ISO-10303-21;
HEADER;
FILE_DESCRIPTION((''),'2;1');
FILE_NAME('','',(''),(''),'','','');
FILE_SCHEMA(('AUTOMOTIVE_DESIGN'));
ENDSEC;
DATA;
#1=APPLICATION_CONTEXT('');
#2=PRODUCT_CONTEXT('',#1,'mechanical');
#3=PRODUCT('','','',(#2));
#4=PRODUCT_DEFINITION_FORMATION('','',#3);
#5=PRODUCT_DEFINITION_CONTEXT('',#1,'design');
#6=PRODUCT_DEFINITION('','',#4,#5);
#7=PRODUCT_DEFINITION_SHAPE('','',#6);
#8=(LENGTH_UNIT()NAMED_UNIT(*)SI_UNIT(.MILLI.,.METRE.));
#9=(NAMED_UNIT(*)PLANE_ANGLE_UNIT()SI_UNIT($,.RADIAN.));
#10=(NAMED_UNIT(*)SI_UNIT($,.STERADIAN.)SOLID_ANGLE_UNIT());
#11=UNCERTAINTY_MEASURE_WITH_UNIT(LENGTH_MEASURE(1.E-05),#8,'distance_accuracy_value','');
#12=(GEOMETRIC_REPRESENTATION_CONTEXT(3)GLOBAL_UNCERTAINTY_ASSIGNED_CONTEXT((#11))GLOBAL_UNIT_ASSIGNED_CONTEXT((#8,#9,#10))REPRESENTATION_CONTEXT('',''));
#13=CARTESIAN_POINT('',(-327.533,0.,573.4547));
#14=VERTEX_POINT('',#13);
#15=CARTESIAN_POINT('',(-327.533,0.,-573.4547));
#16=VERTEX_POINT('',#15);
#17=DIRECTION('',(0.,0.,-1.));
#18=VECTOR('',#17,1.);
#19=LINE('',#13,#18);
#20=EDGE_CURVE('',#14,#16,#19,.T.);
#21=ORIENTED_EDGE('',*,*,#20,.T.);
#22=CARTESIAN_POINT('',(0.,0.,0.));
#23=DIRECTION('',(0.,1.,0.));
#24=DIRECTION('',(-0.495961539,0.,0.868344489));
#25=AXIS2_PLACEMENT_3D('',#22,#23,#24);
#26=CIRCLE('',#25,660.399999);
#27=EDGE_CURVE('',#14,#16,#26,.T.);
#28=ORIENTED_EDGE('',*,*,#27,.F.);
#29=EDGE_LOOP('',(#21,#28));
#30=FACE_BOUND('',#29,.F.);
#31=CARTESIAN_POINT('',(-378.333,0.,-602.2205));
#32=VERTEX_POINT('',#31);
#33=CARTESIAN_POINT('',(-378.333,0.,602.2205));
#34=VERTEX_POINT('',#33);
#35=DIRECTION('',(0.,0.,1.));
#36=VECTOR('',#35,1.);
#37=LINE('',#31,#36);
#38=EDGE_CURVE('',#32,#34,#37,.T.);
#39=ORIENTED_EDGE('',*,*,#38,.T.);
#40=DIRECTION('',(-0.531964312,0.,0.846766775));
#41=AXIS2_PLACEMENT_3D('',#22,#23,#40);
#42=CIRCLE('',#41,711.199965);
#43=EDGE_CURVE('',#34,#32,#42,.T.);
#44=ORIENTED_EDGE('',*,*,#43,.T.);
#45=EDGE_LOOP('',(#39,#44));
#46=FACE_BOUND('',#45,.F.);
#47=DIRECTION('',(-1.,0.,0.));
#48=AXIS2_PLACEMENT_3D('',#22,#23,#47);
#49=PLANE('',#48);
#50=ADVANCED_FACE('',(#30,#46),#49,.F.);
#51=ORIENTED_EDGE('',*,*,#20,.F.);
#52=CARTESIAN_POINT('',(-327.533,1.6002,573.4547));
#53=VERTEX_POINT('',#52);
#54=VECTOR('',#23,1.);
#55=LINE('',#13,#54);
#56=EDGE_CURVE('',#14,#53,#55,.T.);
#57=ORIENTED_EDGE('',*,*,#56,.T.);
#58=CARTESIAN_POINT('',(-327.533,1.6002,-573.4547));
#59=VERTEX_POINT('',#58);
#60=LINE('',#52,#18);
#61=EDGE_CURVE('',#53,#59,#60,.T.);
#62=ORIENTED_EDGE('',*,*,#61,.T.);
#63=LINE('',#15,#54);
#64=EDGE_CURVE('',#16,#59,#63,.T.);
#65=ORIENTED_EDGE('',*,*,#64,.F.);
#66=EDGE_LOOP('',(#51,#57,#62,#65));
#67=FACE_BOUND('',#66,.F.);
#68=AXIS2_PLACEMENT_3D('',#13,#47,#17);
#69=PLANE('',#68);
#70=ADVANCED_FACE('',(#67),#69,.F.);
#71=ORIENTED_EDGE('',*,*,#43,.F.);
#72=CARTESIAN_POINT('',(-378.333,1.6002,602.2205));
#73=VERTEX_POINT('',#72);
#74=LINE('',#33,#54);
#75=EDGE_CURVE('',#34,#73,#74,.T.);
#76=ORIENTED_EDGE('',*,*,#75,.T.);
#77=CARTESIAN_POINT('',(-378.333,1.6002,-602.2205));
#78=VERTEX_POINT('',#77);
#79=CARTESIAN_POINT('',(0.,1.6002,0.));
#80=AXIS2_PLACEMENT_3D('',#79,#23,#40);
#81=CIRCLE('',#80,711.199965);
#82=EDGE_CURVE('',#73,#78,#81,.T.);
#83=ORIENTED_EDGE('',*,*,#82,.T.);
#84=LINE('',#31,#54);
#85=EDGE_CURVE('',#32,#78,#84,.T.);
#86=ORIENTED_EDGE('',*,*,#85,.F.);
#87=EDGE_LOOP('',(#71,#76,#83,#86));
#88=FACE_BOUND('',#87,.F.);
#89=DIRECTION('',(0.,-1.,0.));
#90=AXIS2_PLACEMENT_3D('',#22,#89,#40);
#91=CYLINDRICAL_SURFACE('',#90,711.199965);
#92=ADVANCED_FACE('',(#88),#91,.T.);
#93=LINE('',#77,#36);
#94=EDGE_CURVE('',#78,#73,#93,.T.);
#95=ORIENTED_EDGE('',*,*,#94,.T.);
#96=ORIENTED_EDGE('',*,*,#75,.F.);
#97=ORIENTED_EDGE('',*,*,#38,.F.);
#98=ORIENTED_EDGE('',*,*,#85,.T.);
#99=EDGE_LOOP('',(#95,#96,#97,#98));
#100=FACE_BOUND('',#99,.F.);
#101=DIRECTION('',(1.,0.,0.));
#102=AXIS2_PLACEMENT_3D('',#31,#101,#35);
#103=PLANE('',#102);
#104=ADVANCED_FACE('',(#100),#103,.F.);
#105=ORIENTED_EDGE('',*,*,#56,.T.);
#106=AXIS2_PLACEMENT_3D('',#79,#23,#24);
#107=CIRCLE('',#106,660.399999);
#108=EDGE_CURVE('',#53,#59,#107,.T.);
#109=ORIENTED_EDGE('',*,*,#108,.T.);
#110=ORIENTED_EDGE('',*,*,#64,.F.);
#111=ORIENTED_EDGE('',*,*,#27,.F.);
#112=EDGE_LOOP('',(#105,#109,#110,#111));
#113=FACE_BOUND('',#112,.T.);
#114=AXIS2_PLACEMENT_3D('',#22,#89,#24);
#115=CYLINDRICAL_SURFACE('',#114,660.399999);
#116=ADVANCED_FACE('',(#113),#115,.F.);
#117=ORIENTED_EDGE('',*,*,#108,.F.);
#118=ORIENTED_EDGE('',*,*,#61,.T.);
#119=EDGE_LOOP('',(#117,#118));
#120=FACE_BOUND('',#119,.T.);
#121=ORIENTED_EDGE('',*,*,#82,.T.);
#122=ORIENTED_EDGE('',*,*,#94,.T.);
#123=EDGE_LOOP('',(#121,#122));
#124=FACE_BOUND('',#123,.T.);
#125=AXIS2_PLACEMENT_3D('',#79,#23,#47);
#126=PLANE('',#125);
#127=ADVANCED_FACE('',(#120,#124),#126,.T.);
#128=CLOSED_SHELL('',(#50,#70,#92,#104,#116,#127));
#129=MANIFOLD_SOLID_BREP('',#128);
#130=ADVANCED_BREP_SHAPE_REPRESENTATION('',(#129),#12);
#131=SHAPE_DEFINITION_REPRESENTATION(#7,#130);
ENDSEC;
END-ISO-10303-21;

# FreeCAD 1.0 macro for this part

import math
import FreeCAD as App
import Part
import Sketcher
from FreeCAD import Vector
Q = App.Units.Quantity

doc = App.newDocument("Part")
body = doc.addObject("PartDesign::Body", "Body")

# Sketch on XZ plane
sketch1 = body.newObject("Sketcher::SketchObject", "Sketch")
sketch1.AttachmentSupport = (doc.getObject("XZ_Plane"), [""])
sketch1.MapMode = "FlatFace"
sketch1.addGeometry(Part.ArcOfCircle(Part.Circle(Vector(0, 0, 0), Vector(0, 0, 1), 711.199965), math.radians(-122.138272), math.radians(122.138272)), False)
sketch1.addGeometry(Part.LineSegment(Vector(-378.333, -602.2205, 0), Vector(-378.333, 602.2205, 0)), False)
sketch1.addGeometry(Part.ArcOfCircle(Part.Circle(Vector(0, 0, 0), Vector(0, 0, 1), 660.399999), math.radians(-119.733175), math.radians(119.733175)), False)
sketch1.addGeometry(Part.LineSegment(Vector(-327.533, 573.4547, 0), Vector(-327.533, -573.4547, 0)), False)
sketch1.addConstraint(Sketcher.Constraint("Coincident", 0, 1, 1, 1))
sketch1.addConstraint(Sketcher.Constraint("Coincident", 1, 2, 0, 2))
sketch1.addConstraint(Sketcher.Constraint("Coincident", 2, 1, 3, 2))
sketch1.addConstraint(Sketcher.Constraint("Coincident", 3, 1, 2, 2))
sketch1.addConstraint(Sketcher.Constraint("Vertical", 1))
sketch1.addConstraint(Sketcher.Constraint("Vertical", 3))
sketch1.addConstraint(Sketcher.Constraint("Coincident", 0, 3, -1, 1))
sketch1.addConstraint(Sketcher.Constraint("Coincident", 2, 3, -1, 1))
sketch1.addConstraint(Sketcher.Constraint("Radius", 0, Q("28 in")))
sketch1.addConstraint(Sketcher.Constraint("Radius", 2, Q("26 in")))
sketch1.addConstraint(Sketcher.Constraint("DistanceX", 1, 2, 3, 1, Q("2 in")))
sketch1.addConstraint(Sketcher.Constraint("DistanceX", 1, 2, -1, 1, Q("14.895 in")))
pad1 = body.newObject("PartDesign::Pad", "Pad")
pad1.Profile = sketch1
pad1.Length = Q("0.063 in")
pad1.Reversed = True

doc.recompute()
